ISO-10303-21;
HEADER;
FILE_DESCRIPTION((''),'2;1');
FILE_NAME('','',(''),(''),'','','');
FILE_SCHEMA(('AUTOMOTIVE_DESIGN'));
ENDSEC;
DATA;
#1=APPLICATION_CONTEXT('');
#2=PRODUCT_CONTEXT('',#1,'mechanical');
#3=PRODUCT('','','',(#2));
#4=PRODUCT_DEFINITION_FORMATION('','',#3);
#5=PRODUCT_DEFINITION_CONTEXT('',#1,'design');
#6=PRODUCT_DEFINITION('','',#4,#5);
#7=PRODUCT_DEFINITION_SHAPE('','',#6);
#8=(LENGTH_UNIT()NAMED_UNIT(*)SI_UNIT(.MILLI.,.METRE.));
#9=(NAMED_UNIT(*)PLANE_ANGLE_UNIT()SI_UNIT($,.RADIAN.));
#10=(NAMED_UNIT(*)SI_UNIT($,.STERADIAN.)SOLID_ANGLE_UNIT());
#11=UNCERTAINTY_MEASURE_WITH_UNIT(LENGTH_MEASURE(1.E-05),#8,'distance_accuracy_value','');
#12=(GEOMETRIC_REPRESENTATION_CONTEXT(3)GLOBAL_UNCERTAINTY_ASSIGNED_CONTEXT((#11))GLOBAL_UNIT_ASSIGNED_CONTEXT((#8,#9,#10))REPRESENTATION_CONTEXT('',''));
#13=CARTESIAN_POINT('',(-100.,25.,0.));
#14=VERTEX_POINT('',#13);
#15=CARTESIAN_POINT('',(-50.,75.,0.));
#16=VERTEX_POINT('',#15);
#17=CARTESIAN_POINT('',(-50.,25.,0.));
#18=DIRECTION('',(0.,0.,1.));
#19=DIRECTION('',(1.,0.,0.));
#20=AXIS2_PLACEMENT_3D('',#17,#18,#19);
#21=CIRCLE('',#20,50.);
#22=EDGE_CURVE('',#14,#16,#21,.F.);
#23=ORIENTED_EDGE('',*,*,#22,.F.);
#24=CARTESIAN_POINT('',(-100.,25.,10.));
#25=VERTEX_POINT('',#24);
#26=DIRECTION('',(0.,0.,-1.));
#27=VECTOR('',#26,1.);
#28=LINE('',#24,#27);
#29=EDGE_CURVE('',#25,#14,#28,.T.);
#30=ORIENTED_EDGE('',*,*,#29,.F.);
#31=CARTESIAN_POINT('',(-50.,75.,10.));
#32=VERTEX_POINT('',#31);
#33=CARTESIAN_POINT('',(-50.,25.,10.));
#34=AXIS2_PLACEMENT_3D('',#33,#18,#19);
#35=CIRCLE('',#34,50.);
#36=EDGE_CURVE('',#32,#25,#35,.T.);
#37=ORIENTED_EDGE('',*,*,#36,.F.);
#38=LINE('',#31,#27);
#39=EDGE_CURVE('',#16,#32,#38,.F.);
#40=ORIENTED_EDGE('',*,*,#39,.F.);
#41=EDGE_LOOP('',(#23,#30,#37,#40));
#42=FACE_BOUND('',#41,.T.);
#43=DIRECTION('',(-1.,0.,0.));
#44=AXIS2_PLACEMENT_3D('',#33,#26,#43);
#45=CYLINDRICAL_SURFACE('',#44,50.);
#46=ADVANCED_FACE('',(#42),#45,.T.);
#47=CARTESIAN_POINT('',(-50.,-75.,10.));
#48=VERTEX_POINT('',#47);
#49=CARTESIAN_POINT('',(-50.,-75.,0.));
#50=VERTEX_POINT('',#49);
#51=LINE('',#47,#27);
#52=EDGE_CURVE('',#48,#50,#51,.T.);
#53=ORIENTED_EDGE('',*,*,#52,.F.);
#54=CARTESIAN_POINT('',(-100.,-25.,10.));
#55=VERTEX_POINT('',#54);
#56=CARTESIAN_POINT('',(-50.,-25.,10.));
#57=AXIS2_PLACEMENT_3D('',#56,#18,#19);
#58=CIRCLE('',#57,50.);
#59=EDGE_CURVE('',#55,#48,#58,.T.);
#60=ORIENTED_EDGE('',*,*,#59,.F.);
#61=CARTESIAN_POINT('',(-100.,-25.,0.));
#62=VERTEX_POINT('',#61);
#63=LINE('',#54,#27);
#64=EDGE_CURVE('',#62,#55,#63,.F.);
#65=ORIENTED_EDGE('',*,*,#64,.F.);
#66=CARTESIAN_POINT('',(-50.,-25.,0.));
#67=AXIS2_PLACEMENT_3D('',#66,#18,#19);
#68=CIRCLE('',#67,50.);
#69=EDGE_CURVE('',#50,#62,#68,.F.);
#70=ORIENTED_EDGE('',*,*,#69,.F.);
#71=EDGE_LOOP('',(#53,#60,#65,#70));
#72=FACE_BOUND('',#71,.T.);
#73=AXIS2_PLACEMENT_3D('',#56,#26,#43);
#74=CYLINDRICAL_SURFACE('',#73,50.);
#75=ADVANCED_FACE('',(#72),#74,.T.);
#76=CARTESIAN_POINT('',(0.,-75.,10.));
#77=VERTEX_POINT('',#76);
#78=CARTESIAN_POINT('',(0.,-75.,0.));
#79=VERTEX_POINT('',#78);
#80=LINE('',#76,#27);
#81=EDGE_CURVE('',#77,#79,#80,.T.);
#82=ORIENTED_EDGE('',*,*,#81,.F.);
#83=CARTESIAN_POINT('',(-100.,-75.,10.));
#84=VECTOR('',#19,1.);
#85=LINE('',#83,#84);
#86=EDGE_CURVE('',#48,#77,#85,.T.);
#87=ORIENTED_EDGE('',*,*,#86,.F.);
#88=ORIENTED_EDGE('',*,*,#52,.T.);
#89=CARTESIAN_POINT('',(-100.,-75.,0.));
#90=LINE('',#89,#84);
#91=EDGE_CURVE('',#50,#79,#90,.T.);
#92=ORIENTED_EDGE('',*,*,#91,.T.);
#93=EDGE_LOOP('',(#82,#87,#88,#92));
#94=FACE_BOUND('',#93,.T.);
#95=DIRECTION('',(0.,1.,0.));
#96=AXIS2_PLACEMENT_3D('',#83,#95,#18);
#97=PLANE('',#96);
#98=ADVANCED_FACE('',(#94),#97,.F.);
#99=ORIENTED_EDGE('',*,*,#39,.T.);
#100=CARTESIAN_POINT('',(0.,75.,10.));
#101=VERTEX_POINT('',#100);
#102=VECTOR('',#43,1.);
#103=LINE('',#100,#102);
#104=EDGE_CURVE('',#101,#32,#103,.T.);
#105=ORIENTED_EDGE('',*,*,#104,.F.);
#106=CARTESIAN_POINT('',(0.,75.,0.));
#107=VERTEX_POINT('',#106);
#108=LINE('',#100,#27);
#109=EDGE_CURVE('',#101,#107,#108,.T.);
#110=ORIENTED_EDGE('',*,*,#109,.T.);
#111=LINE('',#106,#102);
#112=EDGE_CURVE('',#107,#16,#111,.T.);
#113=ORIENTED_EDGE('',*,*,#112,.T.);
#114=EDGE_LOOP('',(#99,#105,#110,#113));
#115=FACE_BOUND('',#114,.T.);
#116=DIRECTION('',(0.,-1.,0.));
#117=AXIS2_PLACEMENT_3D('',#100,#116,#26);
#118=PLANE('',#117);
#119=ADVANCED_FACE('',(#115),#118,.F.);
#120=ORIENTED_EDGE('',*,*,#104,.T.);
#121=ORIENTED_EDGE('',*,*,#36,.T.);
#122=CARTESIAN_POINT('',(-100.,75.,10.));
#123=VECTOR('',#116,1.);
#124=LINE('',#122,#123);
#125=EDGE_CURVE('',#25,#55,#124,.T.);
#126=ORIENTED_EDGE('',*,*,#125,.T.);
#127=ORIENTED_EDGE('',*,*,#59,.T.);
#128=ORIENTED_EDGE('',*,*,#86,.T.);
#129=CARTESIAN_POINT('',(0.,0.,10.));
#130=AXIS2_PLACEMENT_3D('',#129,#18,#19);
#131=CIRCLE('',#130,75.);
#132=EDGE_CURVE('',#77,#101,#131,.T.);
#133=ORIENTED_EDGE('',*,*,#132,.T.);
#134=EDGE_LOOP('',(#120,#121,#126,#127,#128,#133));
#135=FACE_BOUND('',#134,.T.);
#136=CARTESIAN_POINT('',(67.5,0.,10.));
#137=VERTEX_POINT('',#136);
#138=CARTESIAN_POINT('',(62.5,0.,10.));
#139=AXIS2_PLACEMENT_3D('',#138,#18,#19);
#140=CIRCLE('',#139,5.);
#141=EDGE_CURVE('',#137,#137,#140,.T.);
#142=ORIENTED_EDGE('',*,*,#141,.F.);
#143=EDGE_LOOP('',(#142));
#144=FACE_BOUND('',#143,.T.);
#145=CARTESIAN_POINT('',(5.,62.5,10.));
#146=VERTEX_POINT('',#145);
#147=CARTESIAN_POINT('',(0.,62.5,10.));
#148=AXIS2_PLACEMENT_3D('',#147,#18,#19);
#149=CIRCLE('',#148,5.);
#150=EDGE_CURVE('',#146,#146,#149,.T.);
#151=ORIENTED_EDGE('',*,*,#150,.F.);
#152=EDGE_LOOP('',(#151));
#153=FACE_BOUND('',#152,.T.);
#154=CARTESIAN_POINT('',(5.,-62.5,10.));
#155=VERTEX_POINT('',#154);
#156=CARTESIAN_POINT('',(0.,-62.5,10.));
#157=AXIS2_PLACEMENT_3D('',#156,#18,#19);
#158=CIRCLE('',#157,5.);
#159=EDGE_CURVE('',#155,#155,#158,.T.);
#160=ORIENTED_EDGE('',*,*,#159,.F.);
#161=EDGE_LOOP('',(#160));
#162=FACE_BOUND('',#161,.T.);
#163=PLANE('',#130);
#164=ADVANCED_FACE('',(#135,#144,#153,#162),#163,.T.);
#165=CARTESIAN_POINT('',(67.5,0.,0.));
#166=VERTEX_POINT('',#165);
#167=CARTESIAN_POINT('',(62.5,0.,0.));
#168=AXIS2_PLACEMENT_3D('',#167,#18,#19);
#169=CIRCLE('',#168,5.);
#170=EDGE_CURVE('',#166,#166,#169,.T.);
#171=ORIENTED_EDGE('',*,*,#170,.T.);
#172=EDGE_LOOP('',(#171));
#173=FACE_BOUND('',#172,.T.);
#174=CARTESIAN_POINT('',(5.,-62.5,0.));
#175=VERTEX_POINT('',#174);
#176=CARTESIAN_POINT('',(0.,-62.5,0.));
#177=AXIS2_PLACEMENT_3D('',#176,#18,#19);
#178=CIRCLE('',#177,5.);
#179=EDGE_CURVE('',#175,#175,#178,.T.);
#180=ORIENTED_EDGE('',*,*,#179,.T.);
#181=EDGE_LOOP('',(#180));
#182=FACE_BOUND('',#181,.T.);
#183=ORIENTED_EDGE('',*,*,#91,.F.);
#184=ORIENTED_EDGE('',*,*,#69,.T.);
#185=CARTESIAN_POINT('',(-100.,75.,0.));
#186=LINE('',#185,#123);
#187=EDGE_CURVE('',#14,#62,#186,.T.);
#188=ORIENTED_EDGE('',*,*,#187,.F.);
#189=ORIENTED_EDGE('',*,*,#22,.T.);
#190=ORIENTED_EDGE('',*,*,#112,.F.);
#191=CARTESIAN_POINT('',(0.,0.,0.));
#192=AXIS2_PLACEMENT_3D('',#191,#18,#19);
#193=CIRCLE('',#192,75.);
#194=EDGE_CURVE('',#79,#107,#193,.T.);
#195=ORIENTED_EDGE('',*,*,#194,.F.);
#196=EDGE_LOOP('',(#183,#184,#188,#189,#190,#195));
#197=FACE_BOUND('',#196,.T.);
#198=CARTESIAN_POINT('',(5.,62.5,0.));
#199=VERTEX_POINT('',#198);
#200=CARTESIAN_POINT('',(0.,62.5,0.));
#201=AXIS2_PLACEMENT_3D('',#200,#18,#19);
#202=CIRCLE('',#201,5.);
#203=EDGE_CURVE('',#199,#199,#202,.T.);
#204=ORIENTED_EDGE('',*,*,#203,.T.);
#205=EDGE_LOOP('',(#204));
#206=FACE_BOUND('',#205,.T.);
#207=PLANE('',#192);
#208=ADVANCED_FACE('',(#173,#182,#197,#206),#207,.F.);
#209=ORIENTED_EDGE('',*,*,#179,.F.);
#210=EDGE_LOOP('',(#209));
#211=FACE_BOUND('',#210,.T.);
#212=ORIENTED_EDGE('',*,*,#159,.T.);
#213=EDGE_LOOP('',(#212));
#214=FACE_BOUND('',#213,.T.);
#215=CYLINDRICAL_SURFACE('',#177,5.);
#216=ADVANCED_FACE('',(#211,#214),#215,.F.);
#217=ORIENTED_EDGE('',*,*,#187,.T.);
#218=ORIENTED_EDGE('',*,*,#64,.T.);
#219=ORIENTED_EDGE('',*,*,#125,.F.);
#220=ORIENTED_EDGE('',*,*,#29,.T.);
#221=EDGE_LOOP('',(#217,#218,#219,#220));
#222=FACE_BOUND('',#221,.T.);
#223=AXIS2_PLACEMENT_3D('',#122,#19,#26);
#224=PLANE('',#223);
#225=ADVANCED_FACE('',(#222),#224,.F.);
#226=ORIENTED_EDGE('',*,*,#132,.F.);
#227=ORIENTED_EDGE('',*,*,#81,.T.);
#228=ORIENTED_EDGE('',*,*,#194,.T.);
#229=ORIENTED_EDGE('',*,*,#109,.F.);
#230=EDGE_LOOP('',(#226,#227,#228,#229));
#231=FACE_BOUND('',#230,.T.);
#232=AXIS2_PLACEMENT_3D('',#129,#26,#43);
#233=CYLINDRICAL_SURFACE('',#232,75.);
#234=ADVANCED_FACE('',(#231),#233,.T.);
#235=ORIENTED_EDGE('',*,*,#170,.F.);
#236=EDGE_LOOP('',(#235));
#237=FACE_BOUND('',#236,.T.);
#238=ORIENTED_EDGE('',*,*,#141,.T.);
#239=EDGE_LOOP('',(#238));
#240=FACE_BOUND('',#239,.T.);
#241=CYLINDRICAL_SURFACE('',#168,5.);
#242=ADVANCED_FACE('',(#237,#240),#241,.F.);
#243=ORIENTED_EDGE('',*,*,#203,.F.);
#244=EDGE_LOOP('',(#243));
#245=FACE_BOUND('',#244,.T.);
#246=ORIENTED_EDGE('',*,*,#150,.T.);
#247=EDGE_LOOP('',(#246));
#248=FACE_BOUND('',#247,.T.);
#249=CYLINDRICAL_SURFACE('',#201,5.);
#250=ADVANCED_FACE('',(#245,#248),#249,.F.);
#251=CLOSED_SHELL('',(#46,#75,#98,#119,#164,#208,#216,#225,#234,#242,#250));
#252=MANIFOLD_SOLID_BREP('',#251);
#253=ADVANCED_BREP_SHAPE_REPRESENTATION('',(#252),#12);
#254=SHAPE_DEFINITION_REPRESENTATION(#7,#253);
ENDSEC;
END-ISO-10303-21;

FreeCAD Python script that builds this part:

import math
import FreeCAD as App
import Part
import Sketcher


def edges_at(feature, points):
    """Names of the edges that pass closest to the given points."""
    edges = feature.Shape.Edges
    near = lambda p: min(range(len(edges)), key=lambda i: edges[i].distToShape(Part.Vertex(*p))[0])
    return sorted({f"Edge{near(p) + 1}" for p in points})

doc = App.newDocument("Part")
body = doc.addObject("PartDesign::Body", "Body")

# Sketch on XY plane
sketch1 = body.newObject("Sketcher::SketchObject", "Sketch")
sketch1.AttachmentSupport = (doc.getObject("XY_Plane"), [""])
sketch1.MapMode = "FlatFace"
sketch1.addGeometry(Part.LineSegment(App.Vector(0, 75, 0), App.Vector(-100, 75, 0)), False)
sketch1.addGeometry(Part.LineSegment(App.Vector(-100, 75, 0), App.Vector(-100, -75, 0)), False)
sketch1.addGeometry(Part.LineSegment(App.Vector(-100, -75, 0), App.Vector(0, -75, 0)), False)
sketch1.addGeometry(Part.ArcOfCircle(Part.Circle(App.Vector(0, 0, 0), App.Vector(0, 0, 1), 75), math.radians(-90), math.radians(90)), False)
sketch1.addConstraint(Sketcher.Constraint("Coincident", 0, 2, 1, 1))
sketch1.addConstraint(Sketcher.Constraint("Coincident", 1, 2, 2, 1))
sketch1.addConstraint(Sketcher.Constraint("Tangent", 2, 2, 3, 1))
sketch1.addConstraint(Sketcher.Constraint("Tangent", 3, 2, 0, 1))
sketch1.addConstraint(Sketcher.Constraint("Horizontal", 0))
sketch1.addConstraint(Sketcher.Constraint("Vertical", 1))
sketch1.addConstraint(Sketcher.Constraint("Horizontal", 2))
sketch1.addConstraint(Sketcher.Constraint("Coincident", 3, 3, -1, 1))
sketch1.addConstraint(Sketcher.Constraint("Radius", 3, 75.0))
sketch1.addConstraint(Sketcher.Constraint("DistanceX", 0, 2, 0, 1, 100.0))
pad1 = body.newObject("PartDesign::Pad", "Pad")
pad1.Profile = sketch1
pad1.Length = 10

# Sketch on XY plane
sketch2 = body.newObject("Sketcher::SketchObject", "Sketch001")
sketch2.AttachmentSupport = (doc.getObject("XY_Plane"), [""])
sketch2.MapMode = "FlatFace"
sketch2.AttachmentOffset = App.Placement(App.Vector(0, 0, 10), App.Rotation())
sketch2.addGeometry(Part.Circle(App.Vector(0, 62.5, 0), App.Vector(0, 0, 1), 5), False)
sketch2.addGeometry(Part.Circle(App.Vector(62.5, 0, 0), App.Vector(0, 0, 1), 5), False)
sketch2.addGeometry(Part.Circle(App.Vector(0, -62.5, 0), App.Vector(0, 0, 1), 5), False)
sketch2.addConstraint(Sketcher.Constraint("Equal", 0, 1))
sketch2.addConstraint(Sketcher.Constraint("Equal", 1, 2))
sketch2.addConstraint(Sketcher.Constraint("Symmetric", 0, 3, 2, 3, -1, 1))
sketch2.addConstraint(Sketcher.Constraint("PointOnObject", 0, 3, -2))
sketch2.addConstraint(Sketcher.Constraint("PointOnObject", 1, 3, -1))
sketch2.addConstraint(Sketcher.Constraint("Diameter", 0, 10.0))
sketch2.addConstraint(Sketcher.Constraint("DistanceY", 2, 3, 0, 3, 125.0))
sketch2.addConstraint(Sketcher.Constraint("DistanceX", -1, 1, 1, 3, 62.5))
pocket1 = body.newObject("PartDesign::Pocket", "Pocket")
pocket1.Profile = sketch2
pocket1.Length = 10
doc.recompute()

fillet = body.newObject("PartDesign::Fillet", "Fillet")
fillet.Base = (pocket1, edges_at(pocket1, [(-100, -75, 5), (-100, 75, 5)]))
fillet.Radius = 50

doc.recompute()
